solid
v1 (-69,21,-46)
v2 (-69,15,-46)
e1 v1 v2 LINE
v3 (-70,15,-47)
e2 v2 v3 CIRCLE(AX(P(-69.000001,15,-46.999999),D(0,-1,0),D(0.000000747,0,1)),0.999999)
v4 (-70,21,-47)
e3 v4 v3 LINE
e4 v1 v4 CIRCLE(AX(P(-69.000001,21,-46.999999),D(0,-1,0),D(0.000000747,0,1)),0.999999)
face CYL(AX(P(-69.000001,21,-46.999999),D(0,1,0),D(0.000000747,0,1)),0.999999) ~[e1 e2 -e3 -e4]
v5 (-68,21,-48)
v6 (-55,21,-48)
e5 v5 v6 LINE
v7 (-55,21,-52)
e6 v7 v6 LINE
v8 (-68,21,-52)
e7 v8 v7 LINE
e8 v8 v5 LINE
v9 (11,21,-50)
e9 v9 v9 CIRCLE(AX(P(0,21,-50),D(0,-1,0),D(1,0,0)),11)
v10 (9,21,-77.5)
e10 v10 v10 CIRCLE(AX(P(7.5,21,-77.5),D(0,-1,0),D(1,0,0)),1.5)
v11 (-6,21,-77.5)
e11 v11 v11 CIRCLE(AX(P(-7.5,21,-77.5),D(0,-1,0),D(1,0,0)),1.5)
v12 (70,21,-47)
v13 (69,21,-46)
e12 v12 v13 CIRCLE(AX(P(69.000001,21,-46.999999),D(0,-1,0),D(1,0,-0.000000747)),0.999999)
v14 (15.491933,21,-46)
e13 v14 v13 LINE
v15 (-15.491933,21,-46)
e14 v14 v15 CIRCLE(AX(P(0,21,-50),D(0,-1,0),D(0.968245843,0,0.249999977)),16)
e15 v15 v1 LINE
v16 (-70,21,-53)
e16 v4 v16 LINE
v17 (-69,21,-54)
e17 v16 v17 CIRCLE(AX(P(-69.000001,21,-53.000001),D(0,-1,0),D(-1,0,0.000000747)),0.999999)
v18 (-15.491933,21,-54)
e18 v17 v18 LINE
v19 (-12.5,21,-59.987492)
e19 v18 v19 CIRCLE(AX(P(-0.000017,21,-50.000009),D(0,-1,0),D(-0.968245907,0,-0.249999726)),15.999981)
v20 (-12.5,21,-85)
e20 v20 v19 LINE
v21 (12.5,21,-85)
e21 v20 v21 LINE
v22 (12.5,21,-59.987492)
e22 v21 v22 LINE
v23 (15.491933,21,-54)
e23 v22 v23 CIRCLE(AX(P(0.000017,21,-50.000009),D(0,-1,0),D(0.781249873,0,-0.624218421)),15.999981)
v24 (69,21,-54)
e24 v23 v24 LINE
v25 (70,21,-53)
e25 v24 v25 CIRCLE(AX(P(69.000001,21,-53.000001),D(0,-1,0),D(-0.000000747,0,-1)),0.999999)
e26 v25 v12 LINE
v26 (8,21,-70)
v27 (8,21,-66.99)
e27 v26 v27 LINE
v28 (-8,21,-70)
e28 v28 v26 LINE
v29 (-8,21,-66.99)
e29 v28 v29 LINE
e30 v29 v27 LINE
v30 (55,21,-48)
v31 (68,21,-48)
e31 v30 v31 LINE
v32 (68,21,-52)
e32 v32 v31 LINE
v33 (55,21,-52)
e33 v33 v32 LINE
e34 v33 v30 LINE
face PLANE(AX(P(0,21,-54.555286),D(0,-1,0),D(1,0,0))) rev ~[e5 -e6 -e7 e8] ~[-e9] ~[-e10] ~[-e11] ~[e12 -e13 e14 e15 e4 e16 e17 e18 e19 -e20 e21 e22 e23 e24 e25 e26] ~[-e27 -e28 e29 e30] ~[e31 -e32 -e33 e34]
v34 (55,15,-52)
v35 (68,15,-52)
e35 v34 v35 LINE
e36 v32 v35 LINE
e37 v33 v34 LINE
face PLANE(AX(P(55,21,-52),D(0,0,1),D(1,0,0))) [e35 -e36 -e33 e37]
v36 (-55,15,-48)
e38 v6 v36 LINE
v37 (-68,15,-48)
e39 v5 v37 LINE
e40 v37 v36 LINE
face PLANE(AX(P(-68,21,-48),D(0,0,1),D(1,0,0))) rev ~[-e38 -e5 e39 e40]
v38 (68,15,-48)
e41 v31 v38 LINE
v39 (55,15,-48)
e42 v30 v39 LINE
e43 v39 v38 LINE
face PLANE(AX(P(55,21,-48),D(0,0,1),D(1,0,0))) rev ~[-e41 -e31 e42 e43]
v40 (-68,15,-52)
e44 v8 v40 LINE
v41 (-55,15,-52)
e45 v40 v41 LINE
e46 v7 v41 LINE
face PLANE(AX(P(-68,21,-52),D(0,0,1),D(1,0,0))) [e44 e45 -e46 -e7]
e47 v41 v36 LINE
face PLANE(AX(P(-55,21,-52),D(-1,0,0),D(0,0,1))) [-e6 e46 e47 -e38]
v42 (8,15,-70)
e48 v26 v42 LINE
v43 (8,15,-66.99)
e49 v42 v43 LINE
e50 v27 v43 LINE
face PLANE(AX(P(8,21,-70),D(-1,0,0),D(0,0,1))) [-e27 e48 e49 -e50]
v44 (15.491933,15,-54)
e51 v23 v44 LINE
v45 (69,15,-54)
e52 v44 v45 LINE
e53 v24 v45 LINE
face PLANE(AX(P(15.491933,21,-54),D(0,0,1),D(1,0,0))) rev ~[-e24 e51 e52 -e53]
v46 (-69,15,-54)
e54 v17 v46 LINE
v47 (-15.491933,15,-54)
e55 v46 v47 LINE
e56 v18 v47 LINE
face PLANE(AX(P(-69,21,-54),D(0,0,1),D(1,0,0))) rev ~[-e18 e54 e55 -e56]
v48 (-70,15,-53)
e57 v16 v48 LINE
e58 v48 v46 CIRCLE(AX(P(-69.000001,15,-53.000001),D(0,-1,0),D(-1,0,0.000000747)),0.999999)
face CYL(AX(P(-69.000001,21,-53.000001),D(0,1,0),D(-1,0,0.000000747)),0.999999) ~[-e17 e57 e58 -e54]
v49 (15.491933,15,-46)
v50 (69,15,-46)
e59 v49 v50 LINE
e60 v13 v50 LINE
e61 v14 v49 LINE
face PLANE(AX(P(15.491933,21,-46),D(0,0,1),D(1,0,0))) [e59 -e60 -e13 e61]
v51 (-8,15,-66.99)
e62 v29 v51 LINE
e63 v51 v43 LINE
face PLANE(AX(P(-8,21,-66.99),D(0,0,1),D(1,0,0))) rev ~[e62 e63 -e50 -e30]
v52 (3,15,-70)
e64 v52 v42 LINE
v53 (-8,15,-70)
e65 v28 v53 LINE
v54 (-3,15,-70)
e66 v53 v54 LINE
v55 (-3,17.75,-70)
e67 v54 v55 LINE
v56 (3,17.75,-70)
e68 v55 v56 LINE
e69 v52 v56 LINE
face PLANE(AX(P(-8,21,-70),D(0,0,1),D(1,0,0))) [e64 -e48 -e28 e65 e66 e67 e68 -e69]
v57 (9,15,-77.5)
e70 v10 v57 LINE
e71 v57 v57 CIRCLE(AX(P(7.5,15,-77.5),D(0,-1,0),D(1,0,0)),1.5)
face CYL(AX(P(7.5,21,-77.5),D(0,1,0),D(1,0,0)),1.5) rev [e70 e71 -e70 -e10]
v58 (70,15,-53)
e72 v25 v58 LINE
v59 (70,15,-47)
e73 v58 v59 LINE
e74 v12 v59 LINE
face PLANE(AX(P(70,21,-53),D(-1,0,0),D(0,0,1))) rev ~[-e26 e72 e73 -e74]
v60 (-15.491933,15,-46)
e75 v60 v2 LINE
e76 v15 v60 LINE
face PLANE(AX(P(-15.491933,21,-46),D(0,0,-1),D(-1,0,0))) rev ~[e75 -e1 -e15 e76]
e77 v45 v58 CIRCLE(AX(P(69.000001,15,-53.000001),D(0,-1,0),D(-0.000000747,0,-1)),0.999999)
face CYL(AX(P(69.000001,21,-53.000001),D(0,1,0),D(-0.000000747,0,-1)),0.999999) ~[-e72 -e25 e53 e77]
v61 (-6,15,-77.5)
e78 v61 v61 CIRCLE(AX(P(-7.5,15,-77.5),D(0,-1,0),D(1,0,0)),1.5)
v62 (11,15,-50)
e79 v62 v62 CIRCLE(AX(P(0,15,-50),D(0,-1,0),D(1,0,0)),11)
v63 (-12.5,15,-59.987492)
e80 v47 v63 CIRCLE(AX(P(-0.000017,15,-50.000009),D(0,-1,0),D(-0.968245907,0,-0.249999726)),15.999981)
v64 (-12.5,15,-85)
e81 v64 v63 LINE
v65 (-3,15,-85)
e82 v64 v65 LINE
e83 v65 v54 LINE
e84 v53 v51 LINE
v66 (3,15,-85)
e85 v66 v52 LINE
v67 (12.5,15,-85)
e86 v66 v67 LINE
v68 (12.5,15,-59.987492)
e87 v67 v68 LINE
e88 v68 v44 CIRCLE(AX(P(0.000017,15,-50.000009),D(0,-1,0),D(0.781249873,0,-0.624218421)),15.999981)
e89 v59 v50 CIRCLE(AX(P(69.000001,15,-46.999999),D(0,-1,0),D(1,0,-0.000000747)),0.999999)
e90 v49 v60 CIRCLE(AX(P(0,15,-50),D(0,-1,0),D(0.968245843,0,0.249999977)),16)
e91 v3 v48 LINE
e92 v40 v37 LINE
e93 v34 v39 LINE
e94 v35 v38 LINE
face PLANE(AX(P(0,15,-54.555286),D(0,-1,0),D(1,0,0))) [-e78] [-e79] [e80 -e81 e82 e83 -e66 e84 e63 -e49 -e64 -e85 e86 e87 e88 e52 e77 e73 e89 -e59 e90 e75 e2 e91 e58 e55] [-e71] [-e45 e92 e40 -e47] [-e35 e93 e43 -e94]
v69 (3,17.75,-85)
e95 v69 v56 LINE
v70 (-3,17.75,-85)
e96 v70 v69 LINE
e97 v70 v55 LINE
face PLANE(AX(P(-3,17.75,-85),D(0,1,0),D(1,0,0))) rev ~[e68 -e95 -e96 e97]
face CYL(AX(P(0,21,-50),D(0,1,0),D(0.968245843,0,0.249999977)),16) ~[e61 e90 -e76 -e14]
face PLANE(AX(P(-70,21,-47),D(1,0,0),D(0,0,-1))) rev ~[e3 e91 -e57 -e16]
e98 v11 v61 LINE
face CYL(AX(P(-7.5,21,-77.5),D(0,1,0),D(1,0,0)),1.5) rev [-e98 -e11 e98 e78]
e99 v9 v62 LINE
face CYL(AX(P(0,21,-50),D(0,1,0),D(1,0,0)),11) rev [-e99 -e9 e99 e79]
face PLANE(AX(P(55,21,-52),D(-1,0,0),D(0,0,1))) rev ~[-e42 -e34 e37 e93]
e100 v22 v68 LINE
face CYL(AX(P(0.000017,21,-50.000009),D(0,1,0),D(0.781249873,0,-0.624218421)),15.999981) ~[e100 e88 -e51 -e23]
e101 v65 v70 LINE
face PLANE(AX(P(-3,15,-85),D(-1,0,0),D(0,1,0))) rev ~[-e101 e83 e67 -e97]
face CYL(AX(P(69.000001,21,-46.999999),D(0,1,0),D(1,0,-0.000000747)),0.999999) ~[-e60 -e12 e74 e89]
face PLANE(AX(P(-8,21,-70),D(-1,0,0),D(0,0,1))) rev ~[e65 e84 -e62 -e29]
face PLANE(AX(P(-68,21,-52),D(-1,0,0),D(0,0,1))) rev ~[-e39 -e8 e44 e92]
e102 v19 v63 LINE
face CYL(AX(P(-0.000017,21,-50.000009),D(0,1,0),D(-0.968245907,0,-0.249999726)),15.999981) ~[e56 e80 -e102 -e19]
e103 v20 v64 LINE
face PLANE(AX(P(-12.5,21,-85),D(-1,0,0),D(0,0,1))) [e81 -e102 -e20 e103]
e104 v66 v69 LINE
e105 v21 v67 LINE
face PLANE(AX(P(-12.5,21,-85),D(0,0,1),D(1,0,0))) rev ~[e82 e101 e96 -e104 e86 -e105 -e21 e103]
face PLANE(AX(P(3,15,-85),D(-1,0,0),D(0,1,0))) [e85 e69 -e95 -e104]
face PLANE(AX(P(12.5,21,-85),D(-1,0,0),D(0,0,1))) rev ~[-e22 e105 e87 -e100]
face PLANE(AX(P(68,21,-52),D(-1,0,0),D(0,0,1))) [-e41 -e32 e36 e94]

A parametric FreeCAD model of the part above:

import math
import FreeCAD as App
import Part
import Sketcher
from FreeCAD import Vector
Q = App.Units.Quantity


def add_polygon(sketch, points):
    """Adds a closed chain of lines whose ends are joined by coincident constraints."""
    first, n = sketch.GeometryCount, len(points)
    for a, b in zip(points, points[1:] + points[:1]):
        sketch.addGeometry(Part.LineSegment(App.Vector(*a, 0), App.Vector(*b, 0)), False)
    for i in range(n):
        sketch.addConstraint(Sketcher.Constraint("Coincident", first + i, 2, first + (i + 1) % n, 1))

doc = App.newDocument("Part")
body = doc.addObject("PartDesign::Body", "Body")

# Sketch on XY plane
sketch1 = body.newObject("Sketcher::SketchObject", "Sketch")
sketch1.AttachmentSupport = (doc.getObject("XY_Plane"), [""])
sketch1.MapMode = "FlatFace"
sketch1.AttachmentOffset = App.Placement(Vector(0, 0, -85), App.Rotation())
add_polygon(sketch1, [(-3, 17.8), (-3, 15), (3, 15), (3, 17.8)])  # lines 0-3
sketch1.addConstraint(Sketcher.Constraint("Vertical", 0))
sketch1.addConstraint(Sketcher.Constraint("Horizontal", 1))
sketch1.addConstraint(Sketcher.Constraint("Vertical", 2))
sketch1.addConstraint(Sketcher.Constraint("Horizontal", 3))
sketch1.addConstraint(Sketcher.Constraint("DistanceX", 1, 1, 1, 2, Q("6 mm")))
sketch1.addConstraint(Sketcher.Constraint("DistanceX", 0, 2, -1, 1, Q("3 mm")))
sketch1.addConstraint(Sketcher.Constraint("DistanceY", -1, 1, 0, 2, Q("15 mm")))
sketch1.addConstraint(Sketcher.Constraint("DistanceY", 0, 2, 0, 1, Q("2.75 mm")))
pad1 = body.newObject("PartDesign::Pad", "Pad")
pad1.Profile = sketch1
pad1.Length = 15
body2 = doc.addObject("PartDesign::Body", "Body001")

# Sketch on XZ plane
sketch2 = body2.newObject("Sketcher::SketchObject", "Sketch001")
sketch2.AttachmentSupport = (doc.getObject("XZ_Plane001"), [""])
sketch2.MapMode = "FlatFace"
sketch2.AttachmentOffset = App.Placement(Vector(0, 0, -21), App.Rotation())
sketch2.addGeometry(Part.ArcOfCircle(Part.Circle(Vector(-0.000017, -50.000009, 0), Vector(0, 0, 1), 15.999981), math.radians(-165.522504), math.radians(-141.375155)), False)  # 0
sketch2.addGeometry(Part.LineSegment(Vector(-12.5, -59.987492, 0), Vector(-12.5, -85, 0)), False)  # 1
sketch2.addGeometry(Part.LineSegment(Vector(-12.5, -85, 0), Vector(12.5, -85, 0)), False)  # 2
sketch2.addGeometry(Part.LineSegment(Vector(12.5, -85, 0), Vector(12.5, -59.987492, 0)), False)  # 3
sketch2.addGeometry(Part.ArcOfCircle(Part.Circle(Vector(0.000017, -50.000009, 0), Vector(0, 0, 1), 15.999981), math.radians(-38.624845), math.radians(-14.477496)), False)  # 4
sketch2.addGeometry(Part.LineSegment(Vector(15.491933, -54, 0), Vector(69, -54, 0)), False)  # 5
sketch2.addGeometry(Part.ArcOfCircle(Part.Circle(Vector(69.000001, -53.000001, 0), Vector(0, 0, 1), 0.999999), math.radians(-90.000043), math.radians(0.000043)), False)  # 6
sketch2.addGeometry(Part.LineSegment(Vector(70, -53, 0), Vector(70, -47, 0)), False)  # 7
sketch2.addGeometry(Part.ArcOfCircle(Part.Circle(Vector(69.000001, -46.999999, 0), Vector(0, 0, 1), 0.999999), math.radians(-0.000043), math.radians(90.000043)), False)  # 8
sketch2.addGeometry(Part.LineSegment(Vector(69, -46, 0), Vector(15.491933, -46, 0)), False)  # 9
sketch2.addGeometry(Part.ArcOfCircle(Part.Circle(Vector(0, -50, 0), Vector(0, 0, 1), 16), math.radians(14.477511), math.radians(165.522489)), False)  # 10
sketch2.addGeometry(Part.LineSegment(Vector(-15.491933, -46, 0), Vector(-69, -46, 0)), False)  # 11
sketch2.addGeometry(Part.ArcOfCircle(Part.Circle(Vector(-69.000001, -46.999999, 0), Vector(0, 0, 1), 0.999999), math.radians(89.999957), math.radians(180.000043)), False)  # 12
sketch2.addGeometry(Part.LineSegment(Vector(-70, -47, 0), Vector(-70, -53, 0)), False)  # 13
sketch2.addGeometry(Part.ArcOfCircle(Part.Circle(Vector(-69.000001, -53.000001, 0), Vector(0, 0, 1), 0.999999), math.radians(179.999957), math.radians(270.000043)), False)  # 14
sketch2.addGeometry(Part.LineSegment(Vector(-69, -54, 0), Vector(-15.491933, -54, 0)), False)  # 15
sketch2.addGeometry(Part.Circle(Vector(-7.5, -77.5, 0), Vector(0, 0, 1), 1.5), False)  # 16
sketch2.addGeometry(Part.Circle(Vector(7.5, -77.5, 0), Vector(0, 0, 1), 1.5), False)  # 17
add_polygon(sketch2, [(8, -70), (-8, -70), (-8, -66.99), (8, -66.99)])  # lines 18-21
add_polygon(sketch2, [(-55, -52), (-68, -52), (-68, -48), (-55, -48)])  # lines 22-25
sketch2.addGeometry(Part.Circle(Vector(0, -50, 0), Vector(0, 0, 1), 11), False)  # 26
add_polygon(sketch2, [(68, -52), (55, -52), (55, -48), (68, -48)])  # lines 27-30
sketch2.addConstraint(Sketcher.Constraint("Coincident", 0, 2, 1, 1))
sketch2.addConstraint(Sketcher.Constraint("Coincident", 1, 2, 2, 1))
sketch2.addConstraint(Sketcher.Constraint("Coincident", 2, 2, 3, 1))
sketch2.addConstraint(Sketcher.Constraint("Coincident", 3, 2, 4, 1))
sketch2.addConstraint(Sketcher.Constraint("Coincident", 4, 2, 5, 1))
sketch2.addConstraint(Sketcher.Constraint("Tangent", 5, 2, 6, 1))
sketch2.addConstraint(Sketcher.Constraint("Tangent", 6, 2, 7, 1))
sketch2.addConstraint(Sketcher.Constraint("Tangent", 7, 2, 8, 1))
sketch2.addConstraint(Sketcher.Constraint("Tangent", 8, 2, 9, 1))
sketch2.addConstraint(Sketcher.Constraint("Coincident", 9, 2, 10, 1))
sketch2.addConstraint(Sketcher.Constraint("Coincident", 10, 2, 11, 1))
sketch2.addConstraint(Sketcher.Constraint("Tangent", 11, 2, 12, 1))
sketch2.addConstraint(Sketcher.Constraint("Tangent", 12, 2, 13, 1))
sketch2.addConstraint(Sketcher.Constraint("Tangent", 13, 2, 14, 1))
sketch2.addConstraint(Sketcher.Constraint("Tangent", 14, 2, 15, 1))
sketch2.addConstraint(Sketcher.Constraint("Coincident", 15, 2, 0, 1))
sketch2.addConstraint(Sketcher.Constraint("Vertical", 1))
sketch2.addConstraint(Sketcher.Constraint("Horizontal", 2))
sketch2.addConstraint(Sketcher.Constraint("Vertical", 3))
sketch2.addConstraint(Sketcher.Constraint("Horizontal", 5))
sketch2.addConstraint(Sketcher.Constraint("Vertical", 7))
sketch2.addConstraint(Sketcher.Constraint("Horizontal", 9))
sketch2.addConstraint(Sketcher.Constraint("Horizontal", 11))
sketch2.addConstraint(Sketcher.Constraint("Vertical", 13))
sketch2.addConstraint(Sketcher.Constraint("Horizontal", 15))
sketch2.addConstraint(Sketcher.Constraint("Horizontal", 18))
sketch2.addConstraint(Sketcher.Constraint("Vertical", 19))
sketch2.addConstraint(Sketcher.Constraint("Horizontal", 20))
sketch2.addConstraint(Sketcher.Constraint("Vertical", 21))
sketch2.addConstraint(Sketcher.Constraint("Horizontal", 22))
sketch2.addConstraint(Sketcher.Constraint("Vertical", 23))
sketch2.addConstraint(Sketcher.Constraint("Horizontal", 24))
sketch2.addConstraint(Sketcher.Constraint("Vertical", 25))
sketch2.addConstraint(Sketcher.Constraint("Horizontal", 27))
sketch2.addConstraint(Sketcher.Constraint("Vertical", 28))
sketch2.addConstraint(Sketcher.Constraint("Horizontal", 29))
sketch2.addConstraint(Sketcher.Constraint("Vertical", 30))
sketch2.addConstraint(Sketcher.Constraint("Coincident", 26, 3, 10, 3))
sketch2.addConstraint(Sketcher.Constraint("Equal", 0, 4))
sketch2.addConstraint(Sketcher.Constraint("Equal", 6, 8))
sketch2.addConstraint(Sketcher.Constraint("Equal", 8, 12))
sketch2.addConstraint(Sketcher.Constraint("Equal", 12, 14))
sketch2.addConstraint(Sketcher.Constraint("Equal", 16, 17))
sketch2.addConstraint(Sketcher.Constraint("Symmetric", 0, 3, 4, 3, -2))
sketch2.addConstraint(Sketcher.Constraint("Symmetric", 8, 3, 12, 3, -2))
sketch2.addConstraint(Sketcher.Constraint("Symmetric", 16, 3, 17, 3, -2))
sketch2.addConstraint(Sketcher.Constraint("Symmetric", 25, 2, 27, 2, -2))
sketch2.addConstraint(Sketcher.Constraint("Symmetric", 23, 2, 29, 2, -2))
sketch2.addConstraint(Sketcher.Constraint("PointOnObject", 10, 3, -2))
sketch2.addConstraint(Sketcher.Constraint("Horizontal", 6, 3, 14, 3))
sketch2.addConstraint(Sketcher.Constraint("Horizontal", 0, 2, 3, 2))
sketch2.addConstraint(Sketcher.Constraint("Vertical", 4, 2, 9, 2))
sketch2.addConstraint(Sketcher.Constraint("Diameter", 16, Q("3 mm")))
sketch2.addConstraint(Sketcher.Constraint("Diameter", 26, Q("22 mm")))
sketch2.addConstraint(Sketcher.Constraint("Radius", 6, Q("0.999999 mm")))
sketch2.addConstraint(Sketcher.Constraint("Radius", 10, Q("16 mm")))
sketch2.addConstraint(Sketcher.Constraint("DistanceX", 2, 1, 2, 2, Q("25 mm")))
sketch2.addConstraint(Sketcher.Constraint("DistanceX", 18, 2, 18, 1, Q("16 mm")))
sketch2.addConstraint(Sketcher.Constraint("DistanceX", 22, 2, 22, 1, Q("13 mm")))
sketch2.addConstraint(Sketcher.Constraint("DistanceY", 7, 1, 7, 2, Q("6 mm")))
sketch2.addConstraint(Sketcher.Constraint("DistanceY", 23, 1, 23, 2, Q("4 mm")))
sketch2.addConstraint(Sketcher.Constraint("DistanceX", -1, 1, 6, 3, Q("69.000001 mm")))
sketch2.addConstraint(Sketcher.Constraint("DistanceY", 6, 3, -1, 1, Q("53.000001 mm")))
sketch2.addConstraint(Sketcher.Constraint("DistanceY", 10, 3, -1, 1, Q("50 mm")))
sketch2.addConstraint(Sketcher.Constraint("DistanceY", 1, 2, -1, 1, Q("85 mm")))
sketch2.addConstraint(Sketcher.Constraint("DistanceX", 18, 2, -1, 1, Q("8 mm")))
sketch2.addConstraint(Sketcher.Constraint("DistanceY", 18, 2, -1, 1, Q("70 mm")))
sketch2.addConstraint(Sketcher.Constraint("DistanceX", 22, 2, -1, 1, Q("68 mm")))
sketch2.addConstraint(Sketcher.Constraint("DistanceY", 22, 2, -1, 1, Q("52 mm")))
sketch2.addConstraint(Sketcher.Constraint("DistanceX", 16, 3, 17, 3, Q("15 mm")))
sketch2.addConstraint(Sketcher.Constraint("DistanceY", 19, 1, 19, 2, Q("3.01 mm")))
sketch2.addConstraint(Sketcher.Constraint("DistanceY", 16, 3, -1, 1, Q("77.5 mm")))
sketch2.addConstraint(Sketcher.Constraint("Radius", 0, Q("15.999981 mm")))
sketch2.addConstraint(Sketcher.Constraint("DistanceY", 1, 2, 1, 1, Q("25.012508 mm")))
pad2 = body2.newObject("PartDesign::Pad", "Pad001")
pad2.Profile = sketch2
pad2.Length = 6
doc.recompute()

boolean = body2.newObject("PartDesign::Boolean", "Boolean")
boolean.Type = "Cut"
boolean.addObjects([body])

doc.recompute()
